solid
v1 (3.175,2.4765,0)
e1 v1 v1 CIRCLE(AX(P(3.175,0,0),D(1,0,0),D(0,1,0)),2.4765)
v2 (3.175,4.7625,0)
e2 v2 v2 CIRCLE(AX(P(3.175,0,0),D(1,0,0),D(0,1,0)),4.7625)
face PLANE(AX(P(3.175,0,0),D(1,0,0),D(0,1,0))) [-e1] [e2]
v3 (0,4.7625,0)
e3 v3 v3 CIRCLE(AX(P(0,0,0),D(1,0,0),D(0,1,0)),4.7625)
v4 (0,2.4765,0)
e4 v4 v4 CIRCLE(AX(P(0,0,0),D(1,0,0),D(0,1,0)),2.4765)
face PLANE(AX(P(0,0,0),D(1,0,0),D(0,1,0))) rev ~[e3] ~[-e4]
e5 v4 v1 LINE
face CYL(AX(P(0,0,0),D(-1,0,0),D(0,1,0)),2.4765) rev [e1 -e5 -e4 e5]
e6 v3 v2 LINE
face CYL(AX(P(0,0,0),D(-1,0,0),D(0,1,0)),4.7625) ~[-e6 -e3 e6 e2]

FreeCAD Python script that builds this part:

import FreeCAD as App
import Part
import Sketcher
Q = App.Units.Quantity

doc = App.newDocument("Part")
body = doc.addObject("PartDesign::Body", "Body")

# Sketch on YZ plane
sketch1 = doc.addObject("Sketcher::SketchObject", "Sketch")
body.addObject(sketch1)
sketch1.AttachmentSupport = (doc.YZ_Plane, [""])
sketch1.MapMode = "FlatFace"
sketch1.addGeometry([
    Part.Circle(App.Vector(0, 0, 0), App.Vector(0, 0, 1), 4.8),
    Part.Circle(App.Vector(0, 0, 0), App.Vector(0, 0, 1), 2.5),
], False)
sketch1.addConstraint([
    Sketcher.Constraint("Coincident", 0, 3, -1, 1),
    Sketcher.Constraint("Coincident", 1, 3, -1, 1),
    Sketcher.Constraint("Diameter", 0, Q("0.375 in")),
    Sketcher.Constraint("Diameter", 1, Q("0.195 in")),
])
pad1 = doc.addObject("PartDesign::Pad", "Pad")
body.addObject(pad1)
pad1.Profile = sketch1
pad1.Length = Q("0.125 in")

doc.recompute()
